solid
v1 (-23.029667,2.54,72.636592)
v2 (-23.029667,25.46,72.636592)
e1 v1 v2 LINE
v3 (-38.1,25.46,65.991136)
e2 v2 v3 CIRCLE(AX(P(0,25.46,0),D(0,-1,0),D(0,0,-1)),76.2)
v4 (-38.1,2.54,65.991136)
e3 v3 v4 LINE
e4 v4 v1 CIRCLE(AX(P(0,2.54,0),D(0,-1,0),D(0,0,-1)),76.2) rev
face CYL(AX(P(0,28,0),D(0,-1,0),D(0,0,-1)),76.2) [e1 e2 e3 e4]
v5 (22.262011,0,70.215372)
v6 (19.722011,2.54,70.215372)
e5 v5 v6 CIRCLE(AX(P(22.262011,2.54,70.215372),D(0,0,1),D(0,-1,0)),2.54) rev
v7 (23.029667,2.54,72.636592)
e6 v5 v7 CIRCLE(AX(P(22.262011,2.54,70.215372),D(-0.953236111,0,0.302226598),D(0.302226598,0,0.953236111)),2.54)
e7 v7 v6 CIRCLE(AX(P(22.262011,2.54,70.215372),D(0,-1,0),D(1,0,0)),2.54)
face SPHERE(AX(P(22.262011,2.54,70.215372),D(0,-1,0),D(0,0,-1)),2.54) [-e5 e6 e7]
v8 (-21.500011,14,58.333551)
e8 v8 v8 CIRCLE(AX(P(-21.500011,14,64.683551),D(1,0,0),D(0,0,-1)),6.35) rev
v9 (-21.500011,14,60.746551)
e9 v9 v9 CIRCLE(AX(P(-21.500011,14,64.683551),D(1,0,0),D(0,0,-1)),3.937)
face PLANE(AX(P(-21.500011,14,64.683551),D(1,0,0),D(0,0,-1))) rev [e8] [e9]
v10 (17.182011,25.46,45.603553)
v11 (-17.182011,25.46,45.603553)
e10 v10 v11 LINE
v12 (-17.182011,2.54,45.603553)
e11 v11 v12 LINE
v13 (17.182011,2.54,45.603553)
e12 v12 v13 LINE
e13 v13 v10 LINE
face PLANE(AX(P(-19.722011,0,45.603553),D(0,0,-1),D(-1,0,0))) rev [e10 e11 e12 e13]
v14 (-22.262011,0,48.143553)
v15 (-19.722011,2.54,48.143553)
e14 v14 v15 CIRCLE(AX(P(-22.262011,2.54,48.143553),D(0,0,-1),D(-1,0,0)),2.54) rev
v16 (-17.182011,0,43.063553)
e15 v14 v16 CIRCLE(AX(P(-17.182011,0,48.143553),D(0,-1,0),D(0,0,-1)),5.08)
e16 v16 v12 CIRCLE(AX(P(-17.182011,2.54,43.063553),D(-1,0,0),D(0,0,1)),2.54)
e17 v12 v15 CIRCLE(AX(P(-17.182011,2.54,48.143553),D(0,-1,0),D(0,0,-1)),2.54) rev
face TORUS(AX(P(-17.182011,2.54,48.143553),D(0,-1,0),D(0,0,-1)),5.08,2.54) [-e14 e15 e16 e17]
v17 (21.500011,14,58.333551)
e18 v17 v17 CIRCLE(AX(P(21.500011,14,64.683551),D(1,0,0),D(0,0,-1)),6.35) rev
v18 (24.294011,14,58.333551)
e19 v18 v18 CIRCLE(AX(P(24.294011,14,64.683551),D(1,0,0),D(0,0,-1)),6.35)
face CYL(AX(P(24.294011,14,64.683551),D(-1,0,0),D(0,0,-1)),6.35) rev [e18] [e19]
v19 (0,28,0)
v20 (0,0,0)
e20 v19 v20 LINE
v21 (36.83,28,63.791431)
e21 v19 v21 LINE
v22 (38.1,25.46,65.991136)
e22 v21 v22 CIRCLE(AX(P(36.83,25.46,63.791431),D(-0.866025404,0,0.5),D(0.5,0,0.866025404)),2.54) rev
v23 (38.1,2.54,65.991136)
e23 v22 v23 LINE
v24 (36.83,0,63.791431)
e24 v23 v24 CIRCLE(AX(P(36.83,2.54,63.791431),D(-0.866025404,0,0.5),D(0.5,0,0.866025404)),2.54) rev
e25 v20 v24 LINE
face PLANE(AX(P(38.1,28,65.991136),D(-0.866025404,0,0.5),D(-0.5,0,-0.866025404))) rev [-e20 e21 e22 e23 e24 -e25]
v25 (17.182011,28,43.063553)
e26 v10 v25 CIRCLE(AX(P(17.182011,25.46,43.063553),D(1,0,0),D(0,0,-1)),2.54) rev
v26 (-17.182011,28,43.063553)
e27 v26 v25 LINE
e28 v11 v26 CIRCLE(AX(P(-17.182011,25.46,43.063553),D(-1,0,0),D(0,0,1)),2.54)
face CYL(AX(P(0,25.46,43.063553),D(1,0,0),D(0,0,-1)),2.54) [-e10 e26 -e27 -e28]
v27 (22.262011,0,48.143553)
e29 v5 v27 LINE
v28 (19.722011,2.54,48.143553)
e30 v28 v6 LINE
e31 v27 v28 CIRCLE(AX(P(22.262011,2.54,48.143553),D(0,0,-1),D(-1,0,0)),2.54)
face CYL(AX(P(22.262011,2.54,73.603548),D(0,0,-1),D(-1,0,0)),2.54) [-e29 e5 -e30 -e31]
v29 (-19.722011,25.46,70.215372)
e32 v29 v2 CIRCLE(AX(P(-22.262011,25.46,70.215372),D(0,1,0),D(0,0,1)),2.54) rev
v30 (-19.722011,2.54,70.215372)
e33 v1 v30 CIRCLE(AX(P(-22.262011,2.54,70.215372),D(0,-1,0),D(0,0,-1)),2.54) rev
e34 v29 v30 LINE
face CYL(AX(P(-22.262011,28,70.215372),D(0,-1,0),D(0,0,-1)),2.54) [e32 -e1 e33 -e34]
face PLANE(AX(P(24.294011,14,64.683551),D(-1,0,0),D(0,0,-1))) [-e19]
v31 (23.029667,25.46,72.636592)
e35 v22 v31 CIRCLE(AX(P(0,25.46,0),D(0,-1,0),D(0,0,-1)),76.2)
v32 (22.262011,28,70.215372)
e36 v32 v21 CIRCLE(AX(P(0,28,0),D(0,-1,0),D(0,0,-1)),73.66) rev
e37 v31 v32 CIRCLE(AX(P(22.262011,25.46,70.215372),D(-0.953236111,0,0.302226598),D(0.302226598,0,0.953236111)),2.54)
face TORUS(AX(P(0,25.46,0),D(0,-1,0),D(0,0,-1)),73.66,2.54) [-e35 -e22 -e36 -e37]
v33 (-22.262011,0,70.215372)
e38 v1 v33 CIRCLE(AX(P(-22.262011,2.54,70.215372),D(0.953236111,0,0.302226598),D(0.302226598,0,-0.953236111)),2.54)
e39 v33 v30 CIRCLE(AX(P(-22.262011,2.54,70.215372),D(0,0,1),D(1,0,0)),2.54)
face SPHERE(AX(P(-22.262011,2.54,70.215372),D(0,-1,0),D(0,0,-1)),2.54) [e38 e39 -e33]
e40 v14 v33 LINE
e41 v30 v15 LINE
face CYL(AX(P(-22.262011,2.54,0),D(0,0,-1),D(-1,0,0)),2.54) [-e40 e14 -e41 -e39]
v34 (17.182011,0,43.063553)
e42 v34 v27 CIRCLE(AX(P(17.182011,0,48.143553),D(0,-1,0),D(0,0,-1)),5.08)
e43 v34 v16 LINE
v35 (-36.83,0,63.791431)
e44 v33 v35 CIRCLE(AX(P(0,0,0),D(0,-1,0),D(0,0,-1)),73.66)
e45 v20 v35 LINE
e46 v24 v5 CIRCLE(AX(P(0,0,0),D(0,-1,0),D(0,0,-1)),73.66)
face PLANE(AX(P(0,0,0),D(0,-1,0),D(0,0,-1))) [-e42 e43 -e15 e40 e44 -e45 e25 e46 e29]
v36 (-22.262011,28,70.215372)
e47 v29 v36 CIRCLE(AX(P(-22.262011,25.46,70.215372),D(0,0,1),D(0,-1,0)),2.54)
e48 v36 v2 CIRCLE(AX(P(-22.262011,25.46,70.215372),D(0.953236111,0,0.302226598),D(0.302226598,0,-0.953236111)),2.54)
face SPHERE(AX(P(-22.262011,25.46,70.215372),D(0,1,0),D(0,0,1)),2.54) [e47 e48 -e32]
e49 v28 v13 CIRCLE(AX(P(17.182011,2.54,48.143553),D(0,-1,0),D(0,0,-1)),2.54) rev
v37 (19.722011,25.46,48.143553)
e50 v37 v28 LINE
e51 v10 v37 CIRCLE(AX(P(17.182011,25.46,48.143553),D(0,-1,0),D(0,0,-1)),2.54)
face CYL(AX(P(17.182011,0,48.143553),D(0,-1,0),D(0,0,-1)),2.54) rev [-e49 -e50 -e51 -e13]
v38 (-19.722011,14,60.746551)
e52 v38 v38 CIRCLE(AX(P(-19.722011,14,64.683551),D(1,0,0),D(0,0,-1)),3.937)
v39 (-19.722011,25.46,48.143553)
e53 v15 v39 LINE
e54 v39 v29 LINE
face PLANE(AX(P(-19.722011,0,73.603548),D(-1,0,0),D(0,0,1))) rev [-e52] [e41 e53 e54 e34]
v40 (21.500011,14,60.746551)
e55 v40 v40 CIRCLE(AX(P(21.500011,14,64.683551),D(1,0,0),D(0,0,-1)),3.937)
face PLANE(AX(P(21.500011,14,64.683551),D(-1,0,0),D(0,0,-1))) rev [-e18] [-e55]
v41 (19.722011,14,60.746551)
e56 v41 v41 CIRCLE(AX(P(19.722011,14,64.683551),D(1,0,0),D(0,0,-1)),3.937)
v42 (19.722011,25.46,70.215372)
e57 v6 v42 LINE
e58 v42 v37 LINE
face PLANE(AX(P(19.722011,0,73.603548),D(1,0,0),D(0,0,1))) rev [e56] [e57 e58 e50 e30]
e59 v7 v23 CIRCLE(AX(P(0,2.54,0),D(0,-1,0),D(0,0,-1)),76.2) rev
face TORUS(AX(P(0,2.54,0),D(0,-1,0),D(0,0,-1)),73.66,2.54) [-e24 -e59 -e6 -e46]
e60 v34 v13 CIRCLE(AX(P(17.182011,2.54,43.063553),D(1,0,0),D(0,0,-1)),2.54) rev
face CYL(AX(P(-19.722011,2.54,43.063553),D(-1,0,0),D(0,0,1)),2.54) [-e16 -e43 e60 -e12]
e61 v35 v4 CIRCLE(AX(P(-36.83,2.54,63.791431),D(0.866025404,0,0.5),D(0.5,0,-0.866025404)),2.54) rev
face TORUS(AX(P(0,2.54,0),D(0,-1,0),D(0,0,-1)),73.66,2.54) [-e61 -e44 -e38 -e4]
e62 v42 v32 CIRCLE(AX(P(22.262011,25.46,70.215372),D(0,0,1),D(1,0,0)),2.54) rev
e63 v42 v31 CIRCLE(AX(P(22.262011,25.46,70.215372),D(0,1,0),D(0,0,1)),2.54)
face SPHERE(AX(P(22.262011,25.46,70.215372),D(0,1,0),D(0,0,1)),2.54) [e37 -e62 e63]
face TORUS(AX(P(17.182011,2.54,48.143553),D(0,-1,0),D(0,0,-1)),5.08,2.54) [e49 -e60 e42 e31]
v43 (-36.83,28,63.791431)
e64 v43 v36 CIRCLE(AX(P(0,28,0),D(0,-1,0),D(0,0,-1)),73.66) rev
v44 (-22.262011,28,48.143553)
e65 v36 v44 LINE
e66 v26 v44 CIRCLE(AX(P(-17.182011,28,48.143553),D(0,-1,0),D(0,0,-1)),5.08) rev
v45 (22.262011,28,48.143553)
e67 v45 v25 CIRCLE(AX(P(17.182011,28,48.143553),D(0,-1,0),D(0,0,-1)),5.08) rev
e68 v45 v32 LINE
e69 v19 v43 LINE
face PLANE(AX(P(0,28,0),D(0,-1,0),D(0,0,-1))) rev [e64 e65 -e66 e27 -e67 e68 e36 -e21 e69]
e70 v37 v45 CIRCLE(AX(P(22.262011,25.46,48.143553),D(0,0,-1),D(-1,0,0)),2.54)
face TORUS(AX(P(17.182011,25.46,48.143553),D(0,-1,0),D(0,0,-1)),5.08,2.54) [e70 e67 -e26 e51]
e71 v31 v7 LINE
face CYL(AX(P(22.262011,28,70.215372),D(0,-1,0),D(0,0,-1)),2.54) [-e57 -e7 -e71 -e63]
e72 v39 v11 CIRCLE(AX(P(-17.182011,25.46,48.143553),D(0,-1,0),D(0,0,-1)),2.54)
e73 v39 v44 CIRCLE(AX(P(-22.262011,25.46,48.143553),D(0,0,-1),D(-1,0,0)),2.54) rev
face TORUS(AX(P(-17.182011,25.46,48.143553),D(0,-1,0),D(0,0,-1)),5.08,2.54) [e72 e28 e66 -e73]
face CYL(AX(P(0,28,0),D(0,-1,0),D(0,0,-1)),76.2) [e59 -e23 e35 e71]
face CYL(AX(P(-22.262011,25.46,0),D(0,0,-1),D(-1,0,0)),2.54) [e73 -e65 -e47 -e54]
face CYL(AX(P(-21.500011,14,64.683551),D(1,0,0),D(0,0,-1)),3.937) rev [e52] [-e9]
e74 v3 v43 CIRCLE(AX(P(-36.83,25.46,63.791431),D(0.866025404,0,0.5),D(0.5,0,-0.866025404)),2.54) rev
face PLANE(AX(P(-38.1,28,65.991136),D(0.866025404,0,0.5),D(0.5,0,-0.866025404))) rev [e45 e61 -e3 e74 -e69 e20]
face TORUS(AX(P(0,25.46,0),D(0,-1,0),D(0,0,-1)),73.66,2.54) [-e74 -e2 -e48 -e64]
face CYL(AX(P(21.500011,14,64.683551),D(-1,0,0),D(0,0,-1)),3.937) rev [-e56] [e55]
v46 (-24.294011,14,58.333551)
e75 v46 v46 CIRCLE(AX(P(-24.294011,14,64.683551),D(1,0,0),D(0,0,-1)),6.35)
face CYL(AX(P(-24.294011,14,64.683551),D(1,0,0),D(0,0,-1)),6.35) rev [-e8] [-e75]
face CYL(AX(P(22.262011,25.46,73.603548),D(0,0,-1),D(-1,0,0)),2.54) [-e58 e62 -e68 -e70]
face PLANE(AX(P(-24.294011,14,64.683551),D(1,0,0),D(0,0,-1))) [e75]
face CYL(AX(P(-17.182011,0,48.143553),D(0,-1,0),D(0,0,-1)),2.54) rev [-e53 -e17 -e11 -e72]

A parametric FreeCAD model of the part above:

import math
import FreeCAD as App
import Part
import Sketcher
Q = App.Units.Quantity


def edges_at(feature, points):
    """Names of the edges that pass closest to the given points."""
    edges = feature.Shape.Edges
    near = lambda p: min(range(len(edges)), key=lambda i: edges[i].distToShape(Part.Vertex(*p))[0])
    return sorted({f"Edge{near(p) + 1}" for p in points})


def add_polygon(sketch, points):
    """Adds a closed chain of lines whose ends are joined by coincident constraints."""
    first, n = sketch.GeometryCount, len(points)
    for a, b in zip(points, points[1:] + points[:1]):
        sketch.addGeometry(Part.LineSegment(App.Vector(*a, 0), App.Vector(*b, 0)), False)
    for i in range(n):
        sketch.addConstraint(Sketcher.Constraint("Coincident", first + i, 2, first + (i + 1) % n, 1))

doc = App.newDocument("Part")
body = doc.addObject("PartDesign::Body", "Body")

# Sketch on XZ plane
sketch1 = body.newObject("Sketcher::SketchObject", "Sketch")
sketch1.AttachmentSupport = (doc.getObject("XZ_Plane"), [""])
sketch1.MapMode = "FlatFace"
sketch1.addGeometry([
    Part.LineSegment(App.Vector(0, 0, 0), App.Vector(-38.1, 65.991136, 0)),
    Part.ArcOfCircle(Part.Circle(App.Vector(0, 0, 0), App.Vector(0, 0, 1), 76.2), math.radians(90), math.radians(120)),
    Part.LineSegment(App.Vector(0, 76.2, 0), App.Vector(0, 0, 0)),
], False)
sketch1.addConstraint([
    Sketcher.Constraint("Coincident", 0, 2, 1, 2),
    Sketcher.Constraint("Coincident", 1, 1, 2, 1),
    Sketcher.Constraint("Coincident", 2, 2, 0, 1),
    Sketcher.Constraint("Vertical", 2),
    Sketcher.Constraint("Coincident", 1, 3, -1, 1),
    Sketcher.Constraint("Coincident", 2, 2, -1, 1),
    Sketcher.Constraint("Radius", 1, Q("3 in")),
    Sketcher.Constraint("Angle", 0, Q("120 deg")),
])
pad1 = body.newObject("PartDesign::Pad", "Pad")
pad1.Profile = sketch1
pad1.Length = 28
pad1.Reversed = True

# Sketch on XZ plane
sketch2 = body.newObject("Sketcher::SketchObject", "Sketch001")
sketch2.AttachmentSupport = (doc.getObject("XZ_Plane"), [""])
sketch2.MapMode = "FlatFace"
sketch2.AttachmentOffset = App.Placement(App.Vector(0, 0, -28), App.Rotation())
add_polygon(sketch2, [(-19.722011, 45.603553), (-19.722011, 89.083413), (19.722011, 89.083413), (19.722011, 45.603553)])  # lines 0-3
sketch2.addConstraint([
    Sketcher.Constraint("Vertical", 0),
    Sketcher.Constraint("Horizontal", 1),
    Sketcher.Constraint("Vertical", 2),
    Sketcher.Constraint("Horizontal", 3),
    Sketcher.Constraint("DistanceY", 0, 1, 0, 2, Q("43.47986 mm")),
    Sketcher.Constraint("DistanceX", 1, 1, 1, 2, Q("39.444022 mm")),
    Sketcher.Constraint("DistanceX", 0, 2, -1, 1, Q("19.722011 mm")),
    Sketcher.Constraint("DistanceY", -1, 1, 0, 2, Q("89.083413 mm")),
])
pocket1 = body.newObject("PartDesign::Pocket", "Pocket")
pocket1.Profile = sketch2
pocket1.Length = 181.354955
pocket1.Midplane = True

# Sketch on YZ plane
sketch3 = body.newObject("Sketcher::SketchObject", "Sketch002")
sketch3.AttachmentSupport = (doc.getObject("YZ_Plane"), [""])
sketch3.MapMode = "FlatFace"
sketch3.AttachmentOffset = App.Placement(App.Vector(0, 0, -19.722011), App.Rotation())
sketch3.addGeometry(Part.Circle(App.Vector(14, 64.683551, 0), App.Vector(0, 0, 1), 6.35), False)
sketch3.addConstraint([
    Sketcher.Constraint("Diameter", 0, Q("0.5 in")),
    Sketcher.Constraint("DistanceX", -1, 1, 0, 3, Q("14 mm")),
    Sketcher.Constraint("DistanceY", -1, 1, 0, 3, Q("64.683551 mm")),
])
pocket2 = body.newObject("PartDesign::Pocket", "Pocket001")
pocket2.Profile = sketch3
pocket2.Length = Q("0.18 in")

# Sketch on YZ plane
sketch4 = body.newObject("Sketcher::SketchObject", "Sketch003")
sketch4.AttachmentSupport = (doc.getObject("YZ_Plane"), [""])
sketch4.MapMode = "FlatFace"
sketch4.AttachmentOffset = App.Placement(App.Vector(0, 0, -19.722011), App.Rotation())
sketch4.addGeometry([
    Part.Circle(App.Vector(14, 64.683551, 0), App.Vector(0, 0, 1), 6.35),
    Part.Circle(App.Vector(14, 64.683551, 0), App.Vector(0, 0, 1), 3.937),
], False)
sketch4.addConstraint([
    Sketcher.Constraint("Coincident", 1, 3, 0, 3),
    Sketcher.Constraint("Diameter", 0, Q("0.5 in")),
    Sketcher.Constraint("Diameter", 1, Q("0.31 in")),
    Sketcher.Constraint("DistanceX", -1, 1, 0, 3, Q("14 mm")),
    Sketcher.Constraint("DistanceY", -1, 1, 0, 3, Q("64.683551 mm")),
])
pad2 = body.newObject("PartDesign::Pad", "Pad001")
pad2.Profile = sketch4
pad2.Length = Q("0.07 in")
pad2.Reversed = True
doc.recompute()

mirrored = body.newObject("PartDesign::Mirrored", "Mirrored")
mirrored.Originals = [pad1, pocket1, pocket2, pad2]
mirrored.MirrorPlane = (doc.getObject("YZ_Plane"), [""])
body.Tip = mirrored
doc.recompute()

fillet = body.newObject("PartDesign::Fillet", "Fillet")
fillet.Base = (mirrored, edges_at(mirrored, [
    (0, 0, 45.604),
    (-29.16, 28, 70.4),
    (-19.722, 0, 59.604),
    (-19.722, 14, 73.604),
    (-19.722, 28, 59.604),
    (0, 28, 45.604),
    (-19.722, 14, 45.604),
    (-29.16, 0, 70.4),
    (29.16, 28, 70.4),
    (29.16, 0, 70.4),
    (19.722, 0, 59.604),
    (19.722, 14, 73.604),
    (19.722, 28, 59.604),
    (19.722, 14, 45.604),
]))
fillet.Radius = Q("0.1 in")

doc.recompute()
